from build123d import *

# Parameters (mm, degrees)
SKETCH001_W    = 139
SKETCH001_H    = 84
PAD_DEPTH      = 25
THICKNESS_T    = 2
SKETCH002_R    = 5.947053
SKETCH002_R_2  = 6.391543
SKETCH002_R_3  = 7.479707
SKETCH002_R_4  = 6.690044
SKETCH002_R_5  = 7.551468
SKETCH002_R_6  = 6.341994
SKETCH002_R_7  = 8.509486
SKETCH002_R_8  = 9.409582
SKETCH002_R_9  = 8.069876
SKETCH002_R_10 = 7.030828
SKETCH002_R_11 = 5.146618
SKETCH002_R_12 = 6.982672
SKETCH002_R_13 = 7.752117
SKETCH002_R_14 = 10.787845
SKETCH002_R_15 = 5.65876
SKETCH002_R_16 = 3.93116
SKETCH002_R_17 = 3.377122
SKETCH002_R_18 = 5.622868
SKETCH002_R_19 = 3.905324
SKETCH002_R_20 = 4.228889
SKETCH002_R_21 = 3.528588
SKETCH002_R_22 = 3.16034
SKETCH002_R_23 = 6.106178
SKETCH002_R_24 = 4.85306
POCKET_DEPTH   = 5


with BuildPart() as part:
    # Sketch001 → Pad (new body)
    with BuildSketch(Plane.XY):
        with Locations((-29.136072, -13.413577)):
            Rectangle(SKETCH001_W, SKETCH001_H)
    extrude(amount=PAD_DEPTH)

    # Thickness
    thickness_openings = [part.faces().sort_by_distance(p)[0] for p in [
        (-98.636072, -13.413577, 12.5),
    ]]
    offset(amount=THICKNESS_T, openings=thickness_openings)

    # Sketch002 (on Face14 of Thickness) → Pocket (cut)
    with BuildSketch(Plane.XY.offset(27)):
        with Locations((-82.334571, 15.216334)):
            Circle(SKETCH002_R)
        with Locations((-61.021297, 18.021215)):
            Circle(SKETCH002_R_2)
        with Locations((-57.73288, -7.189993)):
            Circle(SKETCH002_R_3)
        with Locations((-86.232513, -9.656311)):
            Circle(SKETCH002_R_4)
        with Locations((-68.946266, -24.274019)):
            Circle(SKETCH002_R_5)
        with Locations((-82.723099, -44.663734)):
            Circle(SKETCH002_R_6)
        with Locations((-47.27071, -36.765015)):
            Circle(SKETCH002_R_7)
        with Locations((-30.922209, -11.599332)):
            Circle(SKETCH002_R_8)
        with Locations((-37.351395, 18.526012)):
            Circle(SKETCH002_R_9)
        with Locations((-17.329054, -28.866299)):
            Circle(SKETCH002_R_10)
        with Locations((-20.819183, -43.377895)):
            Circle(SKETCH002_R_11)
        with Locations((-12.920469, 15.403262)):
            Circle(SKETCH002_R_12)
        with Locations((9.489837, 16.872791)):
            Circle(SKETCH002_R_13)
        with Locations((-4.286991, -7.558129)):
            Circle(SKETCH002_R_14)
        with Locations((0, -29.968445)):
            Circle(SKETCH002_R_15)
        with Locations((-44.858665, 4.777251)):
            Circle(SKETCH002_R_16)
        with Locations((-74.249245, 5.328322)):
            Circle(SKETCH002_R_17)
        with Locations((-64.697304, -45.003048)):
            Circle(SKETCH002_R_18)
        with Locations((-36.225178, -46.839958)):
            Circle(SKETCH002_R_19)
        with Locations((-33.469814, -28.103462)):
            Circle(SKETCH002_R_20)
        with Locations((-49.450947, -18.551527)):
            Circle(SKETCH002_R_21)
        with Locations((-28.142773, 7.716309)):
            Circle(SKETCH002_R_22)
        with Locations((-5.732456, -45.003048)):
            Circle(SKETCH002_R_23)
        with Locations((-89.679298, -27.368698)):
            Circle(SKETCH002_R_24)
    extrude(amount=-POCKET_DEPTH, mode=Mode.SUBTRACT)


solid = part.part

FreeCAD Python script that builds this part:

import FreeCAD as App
import Part
import Sketcher

V = App.Vector
Q = App.Units.Quantity


def faces_at(feature, points):
    """Names of the faces that lie closest to the given points."""
    faces = feature.Shape.Faces
    near = lambda p: min(range(len(faces)), key=lambda i: faces[i].distToShape(Part.Vertex(*p))[0])
    return sorted({f"Face{near(p) + 1}" for p in points})

doc = App.newDocument("Part")
params = doc.addObject("Spreadsheet::Sheet", "Params")
for row, (alias, value) in enumerate([
    ("sketch1_width", "139 mm"),
    ("sketch1_height", "84 mm"),
    ("pad1_length", "25 mm"),
    ("thickness_wall", "2 mm"),
    ("pocket1_length", "5 mm"),
], start=1):
    params.set(f"A{row}", alias)
    params.set(f"B{row}", "=" + value)
    params.setAlias(f"B{row}", alias)

body = doc.addObject("PartDesign::Body", "Body")

sketch1 = doc.addObject("Sketcher::SketchObject", "Sketch")
body.addObject(sketch1)
sketch1.AttachmentSupport = (doc.XY_Plane, [""])
sketch1.MapMode = "FlatFace"
sketch1.addGeometry(Part.LineSegment(V(-99, 29, 0), V(-99, -55, 0)), False)
sketch1.addGeometry(Part.LineSegment(V(-99, -55, 0), V(40, -55, 0)), False)
sketch1.addGeometry(Part.LineSegment(V(40, -55, 0), V(40, 29, 0)), False)
sketch1.addGeometry(Part.LineSegment(V(40, 29, 0), V(-99, 29, 0)), False)
sketch1.addConstraint(Sketcher.Constraint("Coincident", 0, 2, 1, 1))
sketch1.addConstraint(Sketcher.Constraint("Coincident", 1, 2, 2, 1))
sketch1.addConstraint(Sketcher.Constraint("Coincident", 2, 2, 3, 1))
sketch1.addConstraint(Sketcher.Constraint("Coincident", 3, 2, 0, 1))
sketch1.addConstraint(Sketcher.Constraint("Vertical", 0))
sketch1.addConstraint(Sketcher.Constraint("Horizontal", 1))
sketch1.addConstraint(Sketcher.Constraint("Vertical", 2))
sketch1.addConstraint(Sketcher.Constraint("Horizontal", 3))
sketch1.addConstraint(Sketcher.Constraint("DistanceX", 1, 1, 1, 2, Q("139 mm")))
sketch1.addConstraint(Sketcher.Constraint("DistanceY", 0, 2, 0, 1, Q("84 mm")))
sketch1.addConstraint(Sketcher.Constraint("DistanceX", 0, 2, -1, 1, Q("98.636072 mm")))
sketch1.addConstraint(Sketcher.Constraint("DistanceY", 0, 2, -1, 1, Q("55.413577 mm")))
sketch1.setExpression("Constraints[8]", "Params.sketch1_width")
sketch1.setExpression("Constraints[9]", "Params.sketch1_height")
pad1 = doc.addObject("PartDesign::Pad", "Pad")
body.addObject(pad1)
pad1.Profile = sketch1
pad1.setExpression("Length", "Params.pad1_length")
doc.recompute()

thickness = doc.addObject("PartDesign::Thickness", "Thickness")
body.addObject(thickness)
thickness.Base = (pad1, faces_at(pad1, [(-98.636, -13.414, 12.5)]))
thickness.setExpression("Value", "Params.thickness_wall")
thickness.Reversed = False
thickness.Join = "Arc"

sketch2 = doc.addObject("Sketcher::SketchObject", "Sketch001")
body.addObject(sketch2)
sketch2.AttachmentSupport = (doc.XY_Plane, [""])
sketch2.MapMode = "FlatFace"
sketch2.AttachmentOffset = App.Placement(V(0, 0, 27), App.Rotation())
sketch2.addGeometry(Part.Circle(V(-82.3, 15.2, 0), V(0, 0, 1), 5.9), False)
sketch2.addGeometry(Part.Circle(V(-61, 18, 0), V(0, 0, 1), 6.4), False)
sketch2.addGeometry(Part.Circle(V(-57.7, -7.2, 0), V(0, 0, 1), 7.5), False)
sketch2.addGeometry(Part.Circle(V(-86.2, -9.7, 0), V(0, 0, 1), 6.7), False)
sketch2.addGeometry(Part.Circle(V(-68.9, -24.3, 0), V(0, 0, 1), 7.6), False)
sketch2.addGeometry(Part.Circle(V(-82.7, -44.7, 0), V(0, 0, 1), 6.3), False)
sketch2.addGeometry(Part.Circle(V(-47.3, -36.8, 0), V(0, 0, 1), 8.5), False)
sketch2.addGeometry(Part.Circle(V(-30.9, -11.6, 0), V(0, 0, 1), 9.4), False)
sketch2.addGeometry(Part.Circle(V(-37.4, 18.5, 0), V(0, 0, 1), 8.1), False)
sketch2.addGeometry(Part.Circle(V(-17.3, -28.9, 0), V(0, 0, 1), 7), False)
sketch2.addGeometry(Part.Circle(V(-20.8, -43.4, 0), V(0, 0, 1), 5.1), False)
sketch2.addGeometry(Part.Circle(V(-12.9, 15.4, 0), V(0, 0, 1), 7), False)
sketch2.addGeometry(Part.Circle(V(9.5, 16.9, 0), V(0, 0, 1), 7.8), False)
sketch2.addGeometry(Part.Circle(V(-4.3, -7.6, 0), V(0, 0, 1), 10.8), False)
sketch2.addGeometry(Part.Circle(V(0, -30, 0), V(0, 0, 1), 5.7), False)
sketch2.addGeometry(Part.Circle(V(-44.9, 4.8, 0), V(0, 0, 1), 3.9), False)
sketch2.addGeometry(Part.Circle(V(-74.2, 5.3, 0), V(0, 0, 1), 3.4), False)
sketch2.addGeometry(Part.Circle(V(-64.7, -45, 0), V(0, 0, 1), 5.6), False)
sketch2.addGeometry(Part.Circle(V(-36.2, -46.8, 0), V(0, 0, 1), 3.9), False)
sketch2.addGeometry(Part.Circle(V(-33.5, -28.1, 0), V(0, 0, 1), 4.2), False)
sketch2.addGeometry(Part.Circle(V(-49.5, -18.6, 0), V(0, 0, 1), 3.5), False)
sketch2.addGeometry(Part.Circle(V(-28.1, 7.7, 0), V(0, 0, 1), 3.2), False)
sketch2.addGeometry(Part.Circle(V(-5.7, -45, 0), V(0, 0, 1), 6.1), False)
sketch2.addGeometry(Part.Circle(V(-89.7, -27.4, 0), V(0, 0, 1), 4.9), False)
sketch2.addConstraint(Sketcher.Constraint("PointOnObject", 14, 3, -2))
sketch2.addConstraint(Sketcher.Constraint("Horizontal", 17, 3, 22, 3))
sketch2.addConstraint(Sketcher.Constraint("Diameter", 3, Q("13.380088 mm")))
sketch2.addConstraint(Sketcher.Constraint("Diameter", 13, Q("21.57569 mm")))
sketch2.addConstraint(Sketcher.Constraint("Diameter", 14, Q("11.31752 mm")))
sketch2.addConstraint(Sketcher.Constraint("Diameter", 15, Q("7.86232 mm")))
sketch2.addConstraint(Sketcher.Constraint("Diameter", 21, Q("6.32068 mm")))
sketch2.addConstraint(Sketcher.Constraint("Diameter", 23, Q("9.70612 mm")))
sketch2.addConstraint(Sketcher.Constraint("Diameter", 0, Q("11.894106 mm")))
sketch2.addConstraint(Sketcher.Constraint("Diameter", 1, Q("12.783086 mm")))
sketch2.addConstraint(Sketcher.Constraint("Diameter", 2, Q("14.959414 mm")))
sketch2.addConstraint(Sketcher.Constraint("Diameter", 4, Q("15.102936 mm")))
sketch2.addConstraint(Sketcher.Constraint("Diameter", 5, Q("12.683988 mm")))
sketch2.addConstraint(Sketcher.Constraint("Diameter", 6, Q("17.018972 mm")))
sketch2.addConstraint(Sketcher.Constraint("Diameter", 7, Q("18.819164 mm")))
sketch2.addConstraint(Sketcher.Constraint("Diameter", 8, Q("16.139752 mm")))
sketch2.addConstraint(Sketcher.Constraint("Diameter", 9, Q("14.061656 mm")))
sketch2.addConstraint(Sketcher.Constraint("Diameter", 10, Q("10.293236 mm")))
sketch2.addConstraint(Sketcher.Constraint("Diameter", 11, Q("13.965344 mm")))
sketch2.addConstraint(Sketcher.Constraint("Diameter", 12, Q("15.504234 mm")))
sketch2.addConstraint(Sketcher.Constraint("Diameter", 16, Q("6.754244 mm")))
sketch2.addConstraint(Sketcher.Constraint("Diameter", 17, Q("11.245736 mm")))
sketch2.addConstraint(Sketcher.Constraint("Diameter", 18, Q("7.810648 mm")))
sketch2.addConstraint(Sketcher.Constraint("Diameter", 19, Q("8.457778 mm")))
sketch2.addConstraint(Sketcher.Constraint("Diameter", 20, Q("7.057176 mm")))
sketch2.addConstraint(Sketcher.Constraint("Diameter", 22, Q("12.212356 mm")))
sketch2.addConstraint(Sketcher.Constraint("DistanceX", 5, 3, -1, 1, Q("82.723099 mm")))
sketch2.addConstraint(Sketcher.Constraint("DistanceY", 9, 3, -1, 1, Q("28.866299 mm")))
sketch2.addConstraint(Sketcher.Constraint("DistanceX", 23, 3, -1, 1, Q("89.679298 mm")))
sketch2.addConstraint(Sketcher.Constraint("DistanceX", 6, 3, 7, 3, Q("16.348501 mm")))
sketch2.addConstraint(Sketcher.Constraint("DistanceX", 0, 3, -1, 1, Q("82.334571 mm")))
sketch2.addConstraint(Sketcher.Constraint("DistanceX", 2, 3, -1, 1, Q("57.73288 mm")))
sketch2.addConstraint(Sketcher.Constraint("DistanceY", 3, 3, -1, 1, Q("9.656311 mm")))
sketch2.addConstraint(Sketcher.Constraint("DistanceY", 4, 3, -1, 1, Q("24.274019 mm")))
sketch2.addConstraint(Sketcher.Constraint("DistanceX", 6, 3, -1, 1, Q("47.27071 mm")))
sketch2.addConstraint(Sketcher.Constraint("DistanceX", 11, 3, -1, 1, Q("12.920469 mm")))
sketch2.addConstraint(Sketcher.Constraint("DistanceY", -1, 1, 12, 3, Q("16.872791 mm")))
sketch2.addConstraint(Sketcher.Constraint("DistanceX", 13, 3, -1, 1, Q("4.286991 mm")))
sketch2.addConstraint(Sketcher.Constraint("DistanceY", 13, 3, -1, 1, Q("7.558129 mm")))
sketch2.addConstraint(Sketcher.Constraint("DistanceY", -1, 1, 15, 3, Q("4.777251 mm")))
sketch2.addConstraint(Sketcher.Constraint("DistanceY", 18, 3, -1, 1, Q("46.839958 mm")))
sketch2.addConstraint(Sketcher.Constraint("DistanceY", -1, 1, 21, 3, Q("7.716309 mm")))
sketch2.addConstraint(Sketcher.Constraint("DistanceY", 0, 3, 1, 3, Q("2.804881 mm")))
sketch2.addConstraint(Sketcher.Constraint("DistanceY", 2, 3, 1, 3, Q("25.211208 mm")))
sketch2.addConstraint(Sketcher.Constraint("DistanceY", 3, 3, 2, 3, Q("2.466318 mm")))
sketch2.addConstraint(Sketcher.Constraint("DistanceX", 4, 3, 1, 3, Q("7.924969 mm")))
sketch2.addConstraint(Sketcher.Constraint("DistanceY", 5, 3, 2, 3, Q("37.473741 mm")))
sketch2.addConstraint(Sketcher.Constraint("DistanceY", 6, 3, 2, 3, Q("29.575022 mm")))
sketch2.addConstraint(Sketcher.Constraint("DistanceY", 7, 3, 2, 3, Q("4.409339 mm")))
sketch2.addConstraint(Sketcher.Constraint("DistanceY", 0, 3, 8, 3, Q("3.309678 mm")))
sketch2.addConstraint(Sketcher.Constraint("DistanceX", 4, 3, 8, 3, Q("31.594871 mm")))
sketch2.addConstraint(Sketcher.Constraint("DistanceX", 8, 3, 9, 3, Q("20.022341 mm")))
sketch2.addConstraint(Sketcher.Constraint("DistanceX", 10, 3, 9, 3, Q("3.490129 mm")))
sketch2.addConstraint(Sketcher.Constraint("DistanceY", 10, 3, 6, 3, Q("6.61288 mm")))
sketch2.addConstraint(Sketcher.Constraint("DistanceY", 11, 3, 8, 3, Q("3.12275 mm")))
sketch2.addConstraint(Sketcher.Constraint("DistanceX", 8, 3, 12, 3, Q("46.841232 mm")))
sketch2.addConstraint(Sketcher.Constraint("DistanceX", 10, 3, 13, 3, Q("16.532192 mm")))
sketch2.addConstraint(Sketcher.Constraint("DistanceY", 10, 3, 14, 3, Q("13.40945 mm")))
sketch2.addConstraint(Sketcher.Constraint("DistanceX", 15, 3, 8, 3, Q("7.50727 mm")))
sketch2.addConstraint(Sketcher.Constraint("DistanceX", 16, 3, 1, 3, Q("13.227948 mm")))
sketch2.addConstraint(Sketcher.Constraint("DistanceY", 15, 3, 16, 3, Q("0.551071 mm")))
sketch2.addConstraint(Sketcher.Constraint("DistanceX", 4, 3, 17, 3, Q("4.248962 mm")))
sketch2.addConstraint(Sketcher.Constraint("DistanceY", 17, 3, 4, 3, Q("20.729029 mm")))
sketch2.addConstraint(Sketcher.Constraint("DistanceX", 3, 3, 17, 3, Q("21.535209 mm")))
sketch2.addConstraint(Sketcher.Constraint("DistanceX", 18, 3, 7, 3, Q("5.302969 mm")))
sketch2.addConstraint(Sketcher.Constraint("DistanceX", 19, 3, 9, 3, Q("16.14076 mm")))
sketch2.addConstraint(Sketcher.Constraint("DistanceY", 19, 3, 7, 3, Q("16.50413 mm")))
sketch2.addConstraint(Sketcher.Constraint("DistanceX", 20, 3, 7, 3, Q("18.528738 mm")))
sketch2.addConstraint(Sketcher.Constraint("DistanceY", 4, 3, 20, 3, Q("5.722492 mm")))
sketch2.addConstraint(Sketcher.Constraint("DistanceX", 8, 3, 21, 3, Q("9.208622 mm")))
sketch2.addConstraint(Sketcher.Constraint("DistanceX", 19, 3, 22, 3, Q("27.737358 mm")))
sketch2.addConstraint(Sketcher.Constraint("DistanceY", 23, 3, 4, 3, Q("3.094679 mm")))
pocket1 = doc.addObject("PartDesign::Pocket", "Pocket")
body.addObject(pocket1)
pocket1.Profile = sketch2
pocket1.setExpression("Length", "Params.pocket1_length")

doc.recompute()
